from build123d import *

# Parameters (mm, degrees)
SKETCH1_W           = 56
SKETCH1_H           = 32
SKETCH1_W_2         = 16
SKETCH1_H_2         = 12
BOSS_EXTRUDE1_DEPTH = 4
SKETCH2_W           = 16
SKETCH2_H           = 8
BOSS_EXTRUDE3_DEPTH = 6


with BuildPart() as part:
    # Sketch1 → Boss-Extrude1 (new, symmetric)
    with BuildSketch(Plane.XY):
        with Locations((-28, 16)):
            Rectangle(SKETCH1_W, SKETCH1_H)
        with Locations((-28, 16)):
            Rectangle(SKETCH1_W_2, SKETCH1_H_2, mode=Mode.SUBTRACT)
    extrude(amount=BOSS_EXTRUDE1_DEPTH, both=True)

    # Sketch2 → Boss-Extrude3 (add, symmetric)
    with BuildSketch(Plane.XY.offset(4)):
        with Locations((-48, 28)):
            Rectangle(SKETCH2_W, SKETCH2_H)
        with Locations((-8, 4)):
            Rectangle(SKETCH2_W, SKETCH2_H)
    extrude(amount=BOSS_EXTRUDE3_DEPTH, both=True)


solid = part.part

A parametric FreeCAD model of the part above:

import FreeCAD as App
import Part
import Sketcher
from FreeCAD import Vector

doc = App.newDocument("Part")
body = doc.addObject("PartDesign::Body", "Body")

# Sketch on XY plane
sketch1 = body.newObject("Sketcher::SketchObject", "Sketch")
sketch1.AttachmentSupport = (doc.getObject("XY_Plane"), [""])
sketch1.MapMode = "FlatFace"
sketch1.addGeometry([
    Part.LineSegment(Vector(-56, 32, 0), Vector(-56, 0, 0)),  # 0
    Part.LineSegment(Vector(-56, 0, 0), Vector(0, 0, 0)),  # 1
    Part.LineSegment(Vector(0, 0, 0), Vector(0, 32, 0)),  # 2
    Part.LineSegment(Vector(0, 32, 0), Vector(-56, 32, 0)),  # 3
    Part.LineSegment(Vector(-20, 10, 0), Vector(-36, 10, 0)),  # 4
    Part.LineSegment(Vector(-36, 10, 0), Vector(-36, 22, 0)),  # 5
    Part.LineSegment(Vector(-36, 22, 0), Vector(-20, 22, 0)),  # 6
    Part.LineSegment(Vector(-20, 22, 0), Vector(-20, 10, 0)),  # 7
], False)
sketch1.addConstraint([
    Sketcher.Constraint("Coincident", 0, 2, 1, 1),
    Sketcher.Constraint("Coincident", 1, 2, 2, 1),
    Sketcher.Constraint("Coincident", 2, 2, 3, 1),
    Sketcher.Constraint("Coincident", 3, 2, 0, 1),
    Sketcher.Constraint("Coincident", 4, 2, 5, 1),
    Sketcher.Constraint("Coincident", 5, 2, 6, 1),
    Sketcher.Constraint("Coincident", 6, 2, 7, 1),
    Sketcher.Constraint("Coincident", 7, 2, 4, 1),
    Sketcher.Constraint("Vertical", 0),
    Sketcher.Constraint("Horizontal", 1),
    Sketcher.Constraint("Vertical", 2),
    Sketcher.Constraint("Horizontal", 3),
    Sketcher.Constraint("Horizontal", 4),
    Sketcher.Constraint("Vertical", 5),
    Sketcher.Constraint("Horizontal", 6),
    Sketcher.Constraint("Vertical", 7),
    Sketcher.Constraint("Coincident", 1, 2, -1, 1),
    Sketcher.Constraint("DistanceX", 1, 1, 1, 2, 56.0),
    Sketcher.Constraint("DistanceX", 4, 2, 4, 1, 16.0),
    Sketcher.Constraint("DistanceY", 0, 2, 0, 1, 32.0),
    Sketcher.Constraint("DistanceY", 5, 1, 5, 2, 12.0),
    Sketcher.Constraint("DistanceX", 4, 2, -1, 1, 36.0),
    Sketcher.Constraint("DistanceY", -1, 1, 4, 2, 10.0),
])
pad1 = body.newObject("PartDesign::Pad", "Pad")
pad1.Profile = sketch1
pad1.Length = 8
pad1.Midplane = True

# Sketch on XY plane
sketch2 = body.newObject("Sketcher::SketchObject", "Sketch001")
sketch2.AttachmentSupport = (doc.getObject("XY_Plane"), [""])
sketch2.MapMode = "FlatFace"
sketch2.AttachmentOffset = App.Placement(Vector(0, 0, 4), App.Rotation())
sketch2.addGeometry([
    Part.LineSegment(Vector(-56, 32, 0), Vector(-56, 24, 0)),  # 0
    Part.LineSegment(Vector(-56, 24, 0), Vector(-40, 24, 0)),  # 1
    Part.LineSegment(Vector(-40, 24, 0), Vector(-40, 32, 0)),  # 2
    Part.LineSegment(Vector(-40, 32, 0), Vector(-56, 32, 0)),  # 3
    Part.LineSegment(Vector(-16, 8, 0), Vector(-16, 0, 0)),  # 4
    Part.LineSegment(Vector(-16, 0, 0), Vector(0, 0, 0)),  # 5
    Part.LineSegment(Vector(0, 0, 0), Vector(0, 8, 0)),  # 6
    Part.LineSegment(Vector(0, 8, 0), Vector(-16, 8, 0)),  # 7
], False)
sketch2.addConstraint([
    Sketcher.Constraint("Coincident", 0, 2, 1, 1),
    Sketcher.Constraint("Coincident", 1, 2, 2, 1),
    Sketcher.Constraint("Coincident", 2, 2, 3, 1),
    Sketcher.Constraint("Coincident", 3, 2, 0, 1),
    Sketcher.Constraint("Coincident", 4, 2, 5, 1),
    Sketcher.Constraint("Coincident", 5, 2, 6, 1),
    Sketcher.Constraint("Coincident", 6, 2, 7, 1),
    Sketcher.Constraint("Coincident", 7, 2, 4, 1),
    Sketcher.Constraint("Vertical", 0),
    Sketcher.Constraint("Horizontal", 1),
    Sketcher.Constraint("Vertical", 2),
    Sketcher.Constraint("Horizontal", 3),
    Sketcher.Constraint("Vertical", 4),
    Sketcher.Constraint("Horizontal", 5),
    Sketcher.Constraint("Vertical", 6),
    Sketcher.Constraint("Horizontal", 7),
    Sketcher.Constraint("Coincident", 5, 2, -1, 1),
    Sketcher.Constraint("Equal", 3, 5),
    Sketcher.Constraint("Equal", 2, 4),
    Sketcher.Constraint("DistanceX", 1, 1, 1, 2, 16.0),
    Sketcher.Constraint("DistanceY", 0, 2, 0, 1, 8.0),
    Sketcher.Constraint("DistanceX", 0, 2, -1, 1, 56.0),
    Sketcher.Constraint("DistanceY", -1, 1, 0, 2, 24.0),
])
pad2 = body.newObject("PartDesign::Pad", "Pad001")
pad2.Profile = sketch2
pad2.Length = 12
pad2.Midplane = True

doc.recompute()
